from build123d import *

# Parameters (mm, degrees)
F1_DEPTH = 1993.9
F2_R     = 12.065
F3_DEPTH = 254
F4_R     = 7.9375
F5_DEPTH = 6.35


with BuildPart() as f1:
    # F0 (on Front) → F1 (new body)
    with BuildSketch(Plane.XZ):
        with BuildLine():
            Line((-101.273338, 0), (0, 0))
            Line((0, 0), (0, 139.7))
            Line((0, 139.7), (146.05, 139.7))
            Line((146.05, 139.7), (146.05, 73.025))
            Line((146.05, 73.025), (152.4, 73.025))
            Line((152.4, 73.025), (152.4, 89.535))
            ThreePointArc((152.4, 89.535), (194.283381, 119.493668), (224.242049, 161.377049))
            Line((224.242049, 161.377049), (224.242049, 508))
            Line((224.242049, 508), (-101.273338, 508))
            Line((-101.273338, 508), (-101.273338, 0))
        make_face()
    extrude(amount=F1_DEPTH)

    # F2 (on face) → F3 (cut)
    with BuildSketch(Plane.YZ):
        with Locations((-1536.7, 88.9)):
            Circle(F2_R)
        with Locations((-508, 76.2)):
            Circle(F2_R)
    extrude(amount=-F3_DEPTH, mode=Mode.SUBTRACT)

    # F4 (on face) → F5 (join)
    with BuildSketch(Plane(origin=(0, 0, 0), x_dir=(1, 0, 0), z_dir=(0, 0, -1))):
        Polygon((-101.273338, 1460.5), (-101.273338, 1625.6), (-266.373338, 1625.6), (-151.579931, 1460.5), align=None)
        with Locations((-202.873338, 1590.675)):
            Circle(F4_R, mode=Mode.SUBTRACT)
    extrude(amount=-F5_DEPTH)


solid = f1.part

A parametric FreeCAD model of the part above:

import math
import FreeCAD as App
import Part
import Sketcher
from FreeCAD import Vector
Q = App.Units.Quantity

doc = App.newDocument("Part")
body = doc.addObject("PartDesign::Body", "Body")

# Sketch on XZ plane
sketch1 = doc.addObject("Sketcher::SketchObject", "Sketch")
body.addObject(sketch1)
sketch1.AttachmentSupport = (doc.XZ_Plane, [""])
sketch1.MapMode = "FlatFace"
sketch1.addGeometry(Part.LineSegment(Vector(-101, 0, 0), Vector(0, 0, 0)), False)
sketch1.addGeometry(Part.LineSegment(Vector(0, 0, 0), Vector(0, 140, 0)), False)
sketch1.addGeometry(Part.LineSegment(Vector(0, 140, 0), Vector(146, 140, 0)), False)
sketch1.addGeometry(Part.LineSegment(Vector(146, 140, 0), Vector(146, 73, 0)), False)
sketch1.addGeometry(Part.LineSegment(Vector(146, 73, 0), Vector(152, 73, 0)), False)
sketch1.addGeometry(Part.LineSegment(Vector(152, 73, 0), Vector(152, 90, 0)), False)
sketch1.addGeometry(Part.ArcOfCircle(Part.Circle(Vector(83, 231, 0), Vector(0, 0, 1), 157), math.radians(-64), math.radians(-26)), False)
sketch1.addGeometry(Part.LineSegment(Vector(224, 161, 0), Vector(224, 508, 0)), False)
sketch1.addGeometry(Part.LineSegment(Vector(224, 508, 0), Vector(-101, 508, 0)), False)
sketch1.addGeometry(Part.LineSegment(Vector(-101, 508, 0), Vector(-101, 0, 0)), False)
sketch1.addConstraint(Sketcher.Constraint("Coincident", 0, 2, 1, 1))
sketch1.addConstraint(Sketcher.Constraint("Coincident", 1, 2, 2, 1))
sketch1.addConstraint(Sketcher.Constraint("Coincident", 2, 2, 3, 1))
sketch1.addConstraint(Sketcher.Constraint("Coincident", 3, 2, 4, 1))
sketch1.addConstraint(Sketcher.Constraint("Coincident", 4, 2, 5, 1))
sketch1.addConstraint(Sketcher.Constraint("Coincident", 5, 2, 6, 1))
sketch1.addConstraint(Sketcher.Constraint("Coincident", 6, 2, 7, 1))
sketch1.addConstraint(Sketcher.Constraint("Coincident", 7, 2, 8, 1))
sketch1.addConstraint(Sketcher.Constraint("Coincident", 8, 2, 9, 1))
sketch1.addConstraint(Sketcher.Constraint("Coincident", 9, 2, 0, 1))
sketch1.addConstraint(Sketcher.Constraint("Horizontal", 0))
sketch1.addConstraint(Sketcher.Constraint("Vertical", 1))
sketch1.addConstraint(Sketcher.Constraint("Horizontal", 2))
sketch1.addConstraint(Sketcher.Constraint("Vertical", 3))
sketch1.addConstraint(Sketcher.Constraint("Horizontal", 4))
sketch1.addConstraint(Sketcher.Constraint("Vertical", 5))
sketch1.addConstraint(Sketcher.Constraint("Vertical", 7))
sketch1.addConstraint(Sketcher.Constraint("Horizontal", 8))
sketch1.addConstraint(Sketcher.Constraint("Vertical", 9))
sketch1.addConstraint(Sketcher.Constraint("Coincident", 0, 2, -1, 1))
sketch1.addConstraint(Sketcher.Constraint("DistanceY", 9, 2, 9, 1, Q("20 in")))
sketch1.addConstraint(Sketcher.Constraint("DistanceY", 1, 1, 1, 2, Q("5.5 in")))
sketch1.addConstraint(Sketcher.Constraint("DistanceX", -1, 1, 4, 2, Q("6 in")))
sketch1.addConstraint(Sketcher.Constraint("DistanceX", 2, 1, 2, 2, Q("5.75 in")))
sketch1.addConstraint(Sketcher.Constraint("DistanceY", 5, 1, 5, 2, Q("0.65 in")))
sketch1.addConstraint(Sketcher.Constraint("DistanceY", 3, 2, 3, 1, Q("2.625 in")))
sketch1.addConstraint(Sketcher.Constraint("Radius", 6, 157.241764))
sketch1.addConstraint(Sketcher.Constraint("DistanceY", 7, 1, 7, 2, 346.622951))
sketch1.addConstraint(Sketcher.Constraint("DistanceX", 8, 2, 6, 3, 184.370001))
sketch1.addConstraint(Sketcher.Constraint("DistanceX", 0, 1, 0, 2, 101.273338))
pad1 = doc.addObject("PartDesign::Pad", "Pad")
body.addObject(pad1)
pad1.Profile = sketch1
pad1.Length = Q("78.5 in")

# Sketch on YZ plane
sketch2 = doc.addObject("Sketcher::SketchObject", "Sketch001")
body.addObject(sketch2)
sketch2.AttachmentSupport = (doc.YZ_Plane, [""])
sketch2.MapMode = "FlatFace"
sketch2.addGeometry(Part.Circle(Vector(-1537, 89, 0), Vector(0, 0, 1), 12), False)
sketch2.addGeometry(Part.Circle(Vector(-508, 76, 0), Vector(0, 0, 1), 12), False)
sketch2.addConstraint(Sketcher.Constraint("Equal", 0, 1))
sketch2.addConstraint(Sketcher.Constraint("Diameter", 0, Q("0.95 in")))
sketch2.addConstraint(Sketcher.Constraint("DistanceX", 1, 3, -1, 1, Q("20 in")))
sketch2.addConstraint(Sketcher.Constraint("DistanceY", -1, 1, 1, 3, Q("3 in")))
sketch2.addConstraint(Sketcher.Constraint("DistanceX", 0, 3, -1, 1, Q("60.5 in")))
sketch2.addConstraint(Sketcher.Constraint("DistanceY", -1, 1, 0, 3, Q("3.5 in")))
pocket1 = doc.addObject("PartDesign::Pocket", "Pocket")
body.addObject(pocket1)
pocket1.Profile = sketch2
pocket1.Length = Q("10 in")

# Sketch on XY plane
sketch3 = doc.addObject("Sketcher::SketchObject", "Sketch002")
body.addObject(sketch3)
sketch3.AttachmentSupport = (doc.XY_Plane, [""])
sketch3.MapMode = "FlatFace"
sketch3.addGeometry(Part.LineSegment(Vector(-101, -1460, 0), Vector(-101, -1626, 0)), False)
sketch3.addGeometry(Part.LineSegment(Vector(-101, -1626, 0), Vector(-266, -1626, 0)), False)
sketch3.addGeometry(Part.LineSegment(Vector(-266, -1626, 0), Vector(-152, -1460, 0)), False)
sketch3.addGeometry(Part.LineSegment(Vector(-152, -1460, 0), Vector(-101, -1460, 0)), False)
sketch3.addGeometry(Part.Circle(Vector(-203, -1591, 0), Vector(0, 0, 1), 8), False)
sketch3.addConstraint(Sketcher.Constraint("Coincident", 0, 2, 1, 1))
sketch3.addConstraint(Sketcher.Constraint("Coincident", 1, 2, 2, 1))
sketch3.addConstraint(Sketcher.Constraint("Coincident", 2, 2, 3, 1))
sketch3.addConstraint(Sketcher.Constraint("Coincident", 3, 2, 0, 1))
sketch3.addConstraint(Sketcher.Constraint("Vertical", 0))
sketch3.addConstraint(Sketcher.Constraint("Horizontal", 1))
sketch3.addConstraint(Sketcher.Constraint("Horizontal", 3))
sketch3.addConstraint(Sketcher.Constraint("Equal", 1, 0))
sketch3.addConstraint(Sketcher.Constraint("Diameter", 4, Q("0.625 in")))
sketch3.addConstraint(Sketcher.Constraint("DistanceX", 1, 2, 1, 1, Q("6.5 in")))
sketch3.addConstraint(Sketcher.Constraint("DistanceY", 0, 2, -1, 1, Q("64 in")))
sketch3.addConstraint(Sketcher.Constraint("DistanceX", 4, 3, 0, 2, Q("4 in")))
sketch3.addConstraint(Sketcher.Constraint("DistanceY", 4, 3, -1, 1, Q("62.625 in")))
sketch3.addConstraint(Sketcher.Constraint("DistanceX", 3, 1, 3, 2, 50.306593))
sketch3.addConstraint(Sketcher.Constraint("DistanceX", 1, 2, -1, 1, 266.373338))
pad2 = doc.addObject("PartDesign::Pad", "Pad001")
body.addObject(pad2)
pad2.Profile = sketch3
pad2.Length = Q("0.25 in")

doc.recompute()
